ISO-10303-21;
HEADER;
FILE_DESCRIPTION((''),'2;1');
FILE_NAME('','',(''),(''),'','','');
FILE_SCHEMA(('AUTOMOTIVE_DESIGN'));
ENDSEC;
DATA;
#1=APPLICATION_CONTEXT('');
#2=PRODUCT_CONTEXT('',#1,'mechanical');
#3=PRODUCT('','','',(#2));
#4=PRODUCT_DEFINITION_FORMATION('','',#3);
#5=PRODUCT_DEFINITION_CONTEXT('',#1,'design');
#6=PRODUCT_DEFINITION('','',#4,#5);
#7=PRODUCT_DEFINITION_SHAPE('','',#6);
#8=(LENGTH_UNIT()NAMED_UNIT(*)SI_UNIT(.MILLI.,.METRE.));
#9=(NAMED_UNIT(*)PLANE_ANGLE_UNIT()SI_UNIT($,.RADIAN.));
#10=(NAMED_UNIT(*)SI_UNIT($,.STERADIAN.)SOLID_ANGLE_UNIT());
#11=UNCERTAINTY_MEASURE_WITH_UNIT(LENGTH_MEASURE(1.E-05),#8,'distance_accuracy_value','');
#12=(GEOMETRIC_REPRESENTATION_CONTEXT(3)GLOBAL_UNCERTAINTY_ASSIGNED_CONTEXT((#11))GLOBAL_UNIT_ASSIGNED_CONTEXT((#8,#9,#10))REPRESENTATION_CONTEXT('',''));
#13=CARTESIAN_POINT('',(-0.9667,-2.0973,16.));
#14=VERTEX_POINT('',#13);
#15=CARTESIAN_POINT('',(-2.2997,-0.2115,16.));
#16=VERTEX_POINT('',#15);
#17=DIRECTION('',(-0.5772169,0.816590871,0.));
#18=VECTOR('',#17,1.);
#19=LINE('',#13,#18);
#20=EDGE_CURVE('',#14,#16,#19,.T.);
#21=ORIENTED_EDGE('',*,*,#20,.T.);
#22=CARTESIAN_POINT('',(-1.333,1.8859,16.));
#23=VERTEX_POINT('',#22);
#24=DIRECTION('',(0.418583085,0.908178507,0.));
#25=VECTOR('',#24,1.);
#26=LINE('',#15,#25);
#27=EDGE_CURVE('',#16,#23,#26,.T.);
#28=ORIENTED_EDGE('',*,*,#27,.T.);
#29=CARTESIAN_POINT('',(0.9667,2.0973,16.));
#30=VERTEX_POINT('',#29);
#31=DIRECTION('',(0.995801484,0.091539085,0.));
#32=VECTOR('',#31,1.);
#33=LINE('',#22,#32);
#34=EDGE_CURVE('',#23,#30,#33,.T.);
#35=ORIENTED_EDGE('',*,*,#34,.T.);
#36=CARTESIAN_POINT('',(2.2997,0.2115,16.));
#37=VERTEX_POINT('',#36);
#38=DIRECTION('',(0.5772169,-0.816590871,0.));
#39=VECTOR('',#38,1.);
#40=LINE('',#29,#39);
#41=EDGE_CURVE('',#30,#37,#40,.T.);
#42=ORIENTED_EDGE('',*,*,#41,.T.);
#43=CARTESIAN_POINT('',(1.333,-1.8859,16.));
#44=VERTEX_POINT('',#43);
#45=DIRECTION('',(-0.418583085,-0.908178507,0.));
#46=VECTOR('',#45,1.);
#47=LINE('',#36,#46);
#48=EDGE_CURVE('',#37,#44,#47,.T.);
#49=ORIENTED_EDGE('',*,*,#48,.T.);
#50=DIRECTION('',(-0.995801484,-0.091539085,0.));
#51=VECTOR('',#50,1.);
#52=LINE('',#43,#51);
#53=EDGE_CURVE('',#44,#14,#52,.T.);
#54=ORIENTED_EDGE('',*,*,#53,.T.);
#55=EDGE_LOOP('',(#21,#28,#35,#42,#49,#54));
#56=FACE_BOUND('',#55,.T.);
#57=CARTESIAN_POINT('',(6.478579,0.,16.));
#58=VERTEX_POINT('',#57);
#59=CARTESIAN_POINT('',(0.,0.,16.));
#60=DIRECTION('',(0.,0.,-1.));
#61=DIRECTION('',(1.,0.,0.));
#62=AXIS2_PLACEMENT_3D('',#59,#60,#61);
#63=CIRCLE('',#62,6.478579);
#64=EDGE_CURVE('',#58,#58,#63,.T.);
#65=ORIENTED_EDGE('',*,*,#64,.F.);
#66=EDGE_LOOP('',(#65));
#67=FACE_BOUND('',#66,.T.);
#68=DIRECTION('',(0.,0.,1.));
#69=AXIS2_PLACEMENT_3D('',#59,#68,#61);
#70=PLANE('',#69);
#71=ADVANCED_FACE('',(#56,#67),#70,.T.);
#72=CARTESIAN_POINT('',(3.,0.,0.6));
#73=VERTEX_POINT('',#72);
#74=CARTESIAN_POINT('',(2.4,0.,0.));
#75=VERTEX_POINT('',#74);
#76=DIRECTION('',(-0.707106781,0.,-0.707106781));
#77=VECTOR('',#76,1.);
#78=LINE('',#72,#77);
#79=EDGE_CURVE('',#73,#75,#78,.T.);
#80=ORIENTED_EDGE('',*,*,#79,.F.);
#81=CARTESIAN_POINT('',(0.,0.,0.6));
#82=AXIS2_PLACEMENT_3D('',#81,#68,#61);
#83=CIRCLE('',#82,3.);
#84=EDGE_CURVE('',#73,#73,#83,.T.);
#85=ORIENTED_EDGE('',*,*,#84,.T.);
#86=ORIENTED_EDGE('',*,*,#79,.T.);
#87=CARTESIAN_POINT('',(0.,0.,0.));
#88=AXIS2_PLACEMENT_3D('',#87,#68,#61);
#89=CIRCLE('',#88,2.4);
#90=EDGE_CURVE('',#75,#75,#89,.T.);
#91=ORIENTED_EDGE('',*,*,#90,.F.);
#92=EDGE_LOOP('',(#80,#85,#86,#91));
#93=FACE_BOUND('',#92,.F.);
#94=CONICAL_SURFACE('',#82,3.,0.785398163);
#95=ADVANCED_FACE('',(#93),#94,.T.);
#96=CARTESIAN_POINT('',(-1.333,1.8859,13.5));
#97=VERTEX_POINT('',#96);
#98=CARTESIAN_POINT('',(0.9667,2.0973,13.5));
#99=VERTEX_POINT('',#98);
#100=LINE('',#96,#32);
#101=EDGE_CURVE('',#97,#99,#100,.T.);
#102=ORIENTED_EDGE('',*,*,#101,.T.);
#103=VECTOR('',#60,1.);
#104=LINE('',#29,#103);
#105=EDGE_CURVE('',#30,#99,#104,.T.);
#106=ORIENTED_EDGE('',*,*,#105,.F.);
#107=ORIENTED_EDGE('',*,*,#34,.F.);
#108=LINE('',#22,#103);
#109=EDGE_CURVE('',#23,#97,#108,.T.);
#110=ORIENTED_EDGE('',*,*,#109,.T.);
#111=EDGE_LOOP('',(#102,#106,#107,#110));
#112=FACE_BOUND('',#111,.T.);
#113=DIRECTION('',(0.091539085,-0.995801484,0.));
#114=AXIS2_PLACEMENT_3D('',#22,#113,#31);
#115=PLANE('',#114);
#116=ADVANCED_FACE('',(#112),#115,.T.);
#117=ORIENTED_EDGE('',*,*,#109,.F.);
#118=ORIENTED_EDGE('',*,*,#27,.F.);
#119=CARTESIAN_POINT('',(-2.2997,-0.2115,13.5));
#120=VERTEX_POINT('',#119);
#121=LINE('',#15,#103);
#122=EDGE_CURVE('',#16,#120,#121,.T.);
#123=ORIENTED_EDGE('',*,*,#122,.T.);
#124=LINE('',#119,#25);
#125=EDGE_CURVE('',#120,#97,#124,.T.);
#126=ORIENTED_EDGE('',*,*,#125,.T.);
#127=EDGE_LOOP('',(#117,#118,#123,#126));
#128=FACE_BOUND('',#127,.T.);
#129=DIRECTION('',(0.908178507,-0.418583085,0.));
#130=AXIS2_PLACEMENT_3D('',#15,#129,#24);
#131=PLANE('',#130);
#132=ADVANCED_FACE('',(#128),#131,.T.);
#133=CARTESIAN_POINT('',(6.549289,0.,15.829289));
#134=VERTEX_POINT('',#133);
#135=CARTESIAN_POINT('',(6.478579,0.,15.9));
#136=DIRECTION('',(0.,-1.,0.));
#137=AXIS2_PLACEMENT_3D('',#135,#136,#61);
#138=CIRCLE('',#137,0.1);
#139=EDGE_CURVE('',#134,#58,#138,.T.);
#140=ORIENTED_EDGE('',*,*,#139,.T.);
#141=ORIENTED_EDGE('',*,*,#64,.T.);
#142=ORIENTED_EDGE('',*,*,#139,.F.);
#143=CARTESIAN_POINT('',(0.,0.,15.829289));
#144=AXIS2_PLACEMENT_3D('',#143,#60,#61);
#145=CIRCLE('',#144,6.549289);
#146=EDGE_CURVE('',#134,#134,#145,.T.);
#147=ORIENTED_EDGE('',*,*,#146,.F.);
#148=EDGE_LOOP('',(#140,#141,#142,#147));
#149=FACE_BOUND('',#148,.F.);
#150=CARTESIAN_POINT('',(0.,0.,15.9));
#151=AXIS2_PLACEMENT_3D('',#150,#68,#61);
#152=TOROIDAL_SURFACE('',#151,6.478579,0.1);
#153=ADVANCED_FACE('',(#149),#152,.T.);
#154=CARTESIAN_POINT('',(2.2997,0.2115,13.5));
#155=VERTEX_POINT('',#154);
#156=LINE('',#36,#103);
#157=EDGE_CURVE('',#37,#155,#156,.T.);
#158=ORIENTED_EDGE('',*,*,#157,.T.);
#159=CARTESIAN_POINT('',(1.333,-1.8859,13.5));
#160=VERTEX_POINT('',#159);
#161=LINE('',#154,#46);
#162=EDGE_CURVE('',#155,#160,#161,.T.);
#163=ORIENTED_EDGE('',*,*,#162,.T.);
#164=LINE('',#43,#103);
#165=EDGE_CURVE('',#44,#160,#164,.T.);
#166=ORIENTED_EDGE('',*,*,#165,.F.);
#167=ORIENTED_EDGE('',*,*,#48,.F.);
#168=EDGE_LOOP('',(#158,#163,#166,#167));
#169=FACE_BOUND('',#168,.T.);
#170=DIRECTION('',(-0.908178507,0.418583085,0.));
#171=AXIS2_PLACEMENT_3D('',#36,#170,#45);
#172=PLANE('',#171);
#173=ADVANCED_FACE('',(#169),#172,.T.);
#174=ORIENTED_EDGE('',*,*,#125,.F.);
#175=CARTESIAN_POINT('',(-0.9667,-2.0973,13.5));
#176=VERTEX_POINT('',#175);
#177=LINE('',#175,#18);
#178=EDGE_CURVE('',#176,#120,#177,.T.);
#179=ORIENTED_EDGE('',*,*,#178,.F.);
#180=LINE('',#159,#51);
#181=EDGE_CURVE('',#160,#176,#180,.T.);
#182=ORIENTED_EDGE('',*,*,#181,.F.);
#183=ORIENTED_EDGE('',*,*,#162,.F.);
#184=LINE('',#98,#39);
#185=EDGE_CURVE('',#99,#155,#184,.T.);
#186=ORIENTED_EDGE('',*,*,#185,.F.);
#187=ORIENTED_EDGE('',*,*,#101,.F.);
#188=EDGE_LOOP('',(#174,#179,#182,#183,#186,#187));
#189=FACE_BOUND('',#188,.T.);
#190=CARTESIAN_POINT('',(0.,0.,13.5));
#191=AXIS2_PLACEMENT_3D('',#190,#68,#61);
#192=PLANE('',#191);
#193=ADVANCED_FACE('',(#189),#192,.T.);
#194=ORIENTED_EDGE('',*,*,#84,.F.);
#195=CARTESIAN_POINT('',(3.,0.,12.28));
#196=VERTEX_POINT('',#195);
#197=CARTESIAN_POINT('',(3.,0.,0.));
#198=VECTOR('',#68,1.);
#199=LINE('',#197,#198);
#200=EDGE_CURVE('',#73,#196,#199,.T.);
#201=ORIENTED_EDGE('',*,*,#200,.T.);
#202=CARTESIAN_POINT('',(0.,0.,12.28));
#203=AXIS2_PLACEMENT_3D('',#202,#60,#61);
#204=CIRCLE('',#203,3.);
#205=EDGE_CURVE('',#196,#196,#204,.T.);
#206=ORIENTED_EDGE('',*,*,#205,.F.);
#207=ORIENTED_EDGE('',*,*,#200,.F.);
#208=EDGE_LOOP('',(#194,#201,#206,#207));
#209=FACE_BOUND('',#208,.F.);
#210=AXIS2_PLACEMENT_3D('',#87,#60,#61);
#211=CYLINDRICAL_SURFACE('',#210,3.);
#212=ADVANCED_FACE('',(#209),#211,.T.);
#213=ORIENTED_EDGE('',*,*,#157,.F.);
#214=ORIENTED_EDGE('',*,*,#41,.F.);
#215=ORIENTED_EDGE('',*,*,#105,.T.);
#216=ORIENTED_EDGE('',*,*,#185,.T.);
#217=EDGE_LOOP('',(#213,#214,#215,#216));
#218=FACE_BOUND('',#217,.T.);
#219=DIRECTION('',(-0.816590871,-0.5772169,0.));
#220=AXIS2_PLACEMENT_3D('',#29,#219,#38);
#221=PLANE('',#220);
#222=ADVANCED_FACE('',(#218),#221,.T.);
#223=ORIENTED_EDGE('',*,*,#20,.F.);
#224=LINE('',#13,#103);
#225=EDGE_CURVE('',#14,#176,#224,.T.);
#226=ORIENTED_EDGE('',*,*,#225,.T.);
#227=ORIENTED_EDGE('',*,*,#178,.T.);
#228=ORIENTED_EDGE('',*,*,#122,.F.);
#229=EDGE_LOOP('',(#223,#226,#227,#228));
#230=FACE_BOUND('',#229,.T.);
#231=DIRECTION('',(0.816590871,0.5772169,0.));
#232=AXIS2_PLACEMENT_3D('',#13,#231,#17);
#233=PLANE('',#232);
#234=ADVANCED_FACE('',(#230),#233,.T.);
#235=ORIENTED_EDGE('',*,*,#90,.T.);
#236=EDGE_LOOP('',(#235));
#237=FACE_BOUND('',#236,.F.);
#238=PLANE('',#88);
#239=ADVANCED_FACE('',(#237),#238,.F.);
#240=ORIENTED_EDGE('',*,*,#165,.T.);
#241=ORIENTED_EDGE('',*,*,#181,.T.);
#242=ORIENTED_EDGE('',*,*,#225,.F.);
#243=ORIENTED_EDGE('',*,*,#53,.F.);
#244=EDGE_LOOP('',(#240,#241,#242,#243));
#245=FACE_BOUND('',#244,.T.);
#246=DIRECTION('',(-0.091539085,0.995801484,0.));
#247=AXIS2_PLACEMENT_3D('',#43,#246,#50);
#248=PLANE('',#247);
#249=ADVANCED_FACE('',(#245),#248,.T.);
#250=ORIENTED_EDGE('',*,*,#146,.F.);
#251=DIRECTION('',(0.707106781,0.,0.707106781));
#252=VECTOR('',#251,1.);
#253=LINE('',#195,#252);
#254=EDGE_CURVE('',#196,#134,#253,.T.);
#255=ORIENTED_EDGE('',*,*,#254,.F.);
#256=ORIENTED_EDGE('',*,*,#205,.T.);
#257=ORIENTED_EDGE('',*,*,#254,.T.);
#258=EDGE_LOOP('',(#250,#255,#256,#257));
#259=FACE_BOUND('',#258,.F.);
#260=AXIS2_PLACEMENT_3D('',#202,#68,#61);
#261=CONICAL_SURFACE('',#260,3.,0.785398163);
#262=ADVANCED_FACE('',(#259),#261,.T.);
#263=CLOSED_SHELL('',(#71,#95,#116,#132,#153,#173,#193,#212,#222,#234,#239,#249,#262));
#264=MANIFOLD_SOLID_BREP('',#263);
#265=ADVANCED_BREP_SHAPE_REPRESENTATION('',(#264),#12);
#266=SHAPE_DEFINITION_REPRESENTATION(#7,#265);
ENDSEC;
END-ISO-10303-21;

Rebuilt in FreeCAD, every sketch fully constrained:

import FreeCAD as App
import Part
import Sketcher
from FreeCAD import Vector
Q = App.Units.Quantity


def edges_at(feature, points):
    """Names of the edges that pass closest to the given points."""
    edges = feature.Shape.Edges
    near = lambda p: min(range(len(edges)), key=lambda i: edges[i].distToShape(Part.Vertex(*p))[0])
    return sorted({f"Edge{near(p) + 1}" for p in points})


def add_polygon(sketch, points):
    """Adds a closed chain of lines whose ends are joined by coincident constraints."""
    first, n = sketch.GeometryCount, len(points)
    for a, b in zip(points, points[1:] + points[:1]):
        sketch.addGeometry(Part.LineSegment(App.Vector(*a, 0), App.Vector(*b, 0)), False)
    for i in range(n):
        sketch.addConstraint(Sketcher.Constraint("Coincident", first + i, 2, first + (i + 1) % n, 1))

doc = App.newDocument("Part")
body = doc.addObject("PartDesign::Body", "Body")

# Sketch on XY plane
sketch1 = body.newObject("Sketcher::SketchObject", "Sketch")
sketch1.AttachmentSupport = (doc.getObject("XY_Plane"), [""])
sketch1.MapMode = "FlatFace"
sketch1.addGeometry(Part.Circle(Vector(0, 0, 0), Vector(0, 0, 1), 3), False)
sketch1.addConstraint(Sketcher.Constraint("Coincident", 0, 3, -1, 1))
sketch1.addConstraint(Sketcher.Constraint("Diameter", 0, Q("6 mm")))
pad1 = body.newObject("PartDesign::Pad", "Pad")
pad1.Profile = sketch1
pad1.Length = 12.28

# Sketch on XY plane
sketch2 = body.newObject("Sketcher::SketchObject", "Sketch001")
sketch2.AttachmentSupport = (doc.getObject("XY_Plane"), [""])
sketch2.MapMode = "FlatFace"
sketch2.AttachmentOffset = App.Placement(Vector(0, 0, 12.28), App.Rotation())
sketch2.addGeometry(Part.Circle(Vector(0, 0, 0), Vector(0, 0, 1), 3), False)
sketch2.addConstraint(Sketcher.Constraint("Coincident", 0, 3, -1, 1))
sketch2.addConstraint(Sketcher.Constraint("Diameter", 0, Q("6 mm")))
pad2 = body.newObject("PartDesign::Pad", "Pad001")
pad2.Profile = sketch2
pad2.Length = 3.72
pad2.TaperAngle = 45

# Sketch on XY plane
sketch3 = body.newObject("Sketcher::SketchObject", "Sketch002")
sketch3.AttachmentSupport = (doc.getObject("XY_Plane"), [""])
sketch3.MapMode = "FlatFace"
sketch3.AttachmentOffset = App.Placement(Vector(0, 0, 16), App.Rotation())
add_polygon(sketch3, [(2.3, 0.2), (1, 2.1), (-1.3, 1.9), (-2.3, -0.2), (-1, -2.1), (1.3, -1.9)])  # lines 0-5
sketch3.addConstraint(Sketcher.Constraint("Symmetric", 0, 2, 3, 2, -1, 1))
sketch3.addConstraint(Sketcher.Constraint("Symmetric", 1, 2, 4, 2, -1, 1))
sketch3.addConstraint(Sketcher.Constraint("Symmetric", 2, 2, 5, 2, -1, 1))
sketch3.addConstraint(Sketcher.Constraint("Equal", 0, 1))
sketch3.addConstraint(Sketcher.Constraint("Equal", 1, 2))
sketch3.addConstraint(Sketcher.Constraint("DistanceX", 1, 2, -1, 1, Q("1.333 mm")))
sketch3.addConstraint(Sketcher.Constraint("DistanceY", -1, 1, 1, 2, Q("1.886 mm")))
sketch3.addConstraint(Sketcher.Constraint("DistanceX", 2, 2, 3, 2, Q("1.333 mm")))
sketch3.addConstraint(Sketcher.Constraint("DistanceY", 2, 2, 5, 2, Q("0.423 mm")))
pocket1 = body.newObject("PartDesign::Pocket", "Pocket")
pocket1.Profile = sketch3
pocket1.Length = 2.5
doc.recompute()

chamfer = body.newObject("PartDesign::Chamfer", "Chamfer")
chamfer.Base = (pocket1, edges_at(pocket1, [(-3, 0, 0)]))
chamfer.Size = 0.6
doc.recompute()

fillet = body.newObject("PartDesign::Fillet", "Fillet")
fillet.Base = (chamfer, edges_at(chamfer, [(-6.72, 0, 16)]))
fillet.Radius = 0.1

doc.recompute()
